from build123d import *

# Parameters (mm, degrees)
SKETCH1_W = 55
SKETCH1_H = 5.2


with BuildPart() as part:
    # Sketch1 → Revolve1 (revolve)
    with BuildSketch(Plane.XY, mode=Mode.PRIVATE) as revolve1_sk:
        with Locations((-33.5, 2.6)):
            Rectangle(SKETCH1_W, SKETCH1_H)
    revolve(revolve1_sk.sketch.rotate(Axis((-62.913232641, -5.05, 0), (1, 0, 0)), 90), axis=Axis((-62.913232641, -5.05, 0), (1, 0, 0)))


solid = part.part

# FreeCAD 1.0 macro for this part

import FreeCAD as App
import Part
import Sketcher


def add_polygon(sketch, points):
    """Adds a closed chain of lines whose ends are joined by coincident constraints."""
    first, n = sketch.GeometryCount, len(points)
    for a, b in zip(points, points[1:] + points[:1]):
        sketch.addGeometry(Part.LineSegment(App.Vector(*a, 0), App.Vector(*b, 0)), False)
    for i in range(n):
        sketch.addConstraint(Sketcher.Constraint("Coincident", first + i, 2, first + (i + 1) % n, 1))

doc = App.newDocument("Part")
params = doc.addObject("Spreadsheet::Sheet", "Params")
for row, (alias, value) in enumerate([
    ("sketch1_width", "55 mm"),
    ("sketch1_height", "5.2 mm"),
    ("revolution_angle", "360 deg"),
], start=1):
    params.set(f"A{row}", alias)
    params.set(f"B{row}", "=" + value)
    params.setAlias(f"B{row}", alias)

body = doc.addObject("PartDesign::Body", "Body")

sketch1 = body.newObject("Sketcher::SketchObject", "Sketch")
sketch1.AttachmentSupport = (doc.getObject("XY_Plane"), [""])
sketch1.MapMode = "FlatFace"
add_polygon(sketch1, [(-61, 5), (-61, 0), (-6, 0), (-6, 5)])
sketch1.addGeometry(Part.LineSegment(App.Vector(-61, -5, 0), App.Vector(-6, -5, 0)), True)
sketch1.addConstraint(Sketcher.Constraint("Vertical", 0))
sketch1.addConstraint(Sketcher.Constraint("Horizontal", 1))
sketch1.addConstraint(Sketcher.Constraint("Vertical", 2))
sketch1.addConstraint(Sketcher.Constraint("Horizontal", 3))
sketch1.addConstraint(Sketcher.Constraint("Horizontal", 4))
sketch1.addConstraint(Sketcher.Constraint("PointOnObject", 0, 2, -1))
sketch1.addConstraint(Sketcher.Constraint("Vertical", 3, 2, 4, 1))
sketch1.addConstraint(Sketcher.Constraint("Vertical", 2, 2, 4, 2))
sketch1.addConstraint(Sketcher.Constraint("DistanceX", 1, 1, 1, 2, 55.0))
sketch1.addConstraint(Sketcher.Constraint("DistanceY", 0, 2, 0, 1, 5.2))
sketch1.addConstraint(Sketcher.Constraint("DistanceX", 0, 2, -1, 1, 61.0))
sketch1.addConstraint(Sketcher.Constraint("DistanceY", 4, 1, -1, 1, 5.05))
sketch1.setExpression("Constraints[12]", "Params.sketch1_width")
sketch1.setExpression("Constraints[13]", "Params.sketch1_height")
revolution = body.newObject("PartDesign::Revolution", "Revolution")
revolution.Profile = sketch1
revolution.ReferenceAxis = (sketch1, ["Axis0"])
revolution.setExpression("Angle", "Params.revolution_angle")

doc.recompute()
